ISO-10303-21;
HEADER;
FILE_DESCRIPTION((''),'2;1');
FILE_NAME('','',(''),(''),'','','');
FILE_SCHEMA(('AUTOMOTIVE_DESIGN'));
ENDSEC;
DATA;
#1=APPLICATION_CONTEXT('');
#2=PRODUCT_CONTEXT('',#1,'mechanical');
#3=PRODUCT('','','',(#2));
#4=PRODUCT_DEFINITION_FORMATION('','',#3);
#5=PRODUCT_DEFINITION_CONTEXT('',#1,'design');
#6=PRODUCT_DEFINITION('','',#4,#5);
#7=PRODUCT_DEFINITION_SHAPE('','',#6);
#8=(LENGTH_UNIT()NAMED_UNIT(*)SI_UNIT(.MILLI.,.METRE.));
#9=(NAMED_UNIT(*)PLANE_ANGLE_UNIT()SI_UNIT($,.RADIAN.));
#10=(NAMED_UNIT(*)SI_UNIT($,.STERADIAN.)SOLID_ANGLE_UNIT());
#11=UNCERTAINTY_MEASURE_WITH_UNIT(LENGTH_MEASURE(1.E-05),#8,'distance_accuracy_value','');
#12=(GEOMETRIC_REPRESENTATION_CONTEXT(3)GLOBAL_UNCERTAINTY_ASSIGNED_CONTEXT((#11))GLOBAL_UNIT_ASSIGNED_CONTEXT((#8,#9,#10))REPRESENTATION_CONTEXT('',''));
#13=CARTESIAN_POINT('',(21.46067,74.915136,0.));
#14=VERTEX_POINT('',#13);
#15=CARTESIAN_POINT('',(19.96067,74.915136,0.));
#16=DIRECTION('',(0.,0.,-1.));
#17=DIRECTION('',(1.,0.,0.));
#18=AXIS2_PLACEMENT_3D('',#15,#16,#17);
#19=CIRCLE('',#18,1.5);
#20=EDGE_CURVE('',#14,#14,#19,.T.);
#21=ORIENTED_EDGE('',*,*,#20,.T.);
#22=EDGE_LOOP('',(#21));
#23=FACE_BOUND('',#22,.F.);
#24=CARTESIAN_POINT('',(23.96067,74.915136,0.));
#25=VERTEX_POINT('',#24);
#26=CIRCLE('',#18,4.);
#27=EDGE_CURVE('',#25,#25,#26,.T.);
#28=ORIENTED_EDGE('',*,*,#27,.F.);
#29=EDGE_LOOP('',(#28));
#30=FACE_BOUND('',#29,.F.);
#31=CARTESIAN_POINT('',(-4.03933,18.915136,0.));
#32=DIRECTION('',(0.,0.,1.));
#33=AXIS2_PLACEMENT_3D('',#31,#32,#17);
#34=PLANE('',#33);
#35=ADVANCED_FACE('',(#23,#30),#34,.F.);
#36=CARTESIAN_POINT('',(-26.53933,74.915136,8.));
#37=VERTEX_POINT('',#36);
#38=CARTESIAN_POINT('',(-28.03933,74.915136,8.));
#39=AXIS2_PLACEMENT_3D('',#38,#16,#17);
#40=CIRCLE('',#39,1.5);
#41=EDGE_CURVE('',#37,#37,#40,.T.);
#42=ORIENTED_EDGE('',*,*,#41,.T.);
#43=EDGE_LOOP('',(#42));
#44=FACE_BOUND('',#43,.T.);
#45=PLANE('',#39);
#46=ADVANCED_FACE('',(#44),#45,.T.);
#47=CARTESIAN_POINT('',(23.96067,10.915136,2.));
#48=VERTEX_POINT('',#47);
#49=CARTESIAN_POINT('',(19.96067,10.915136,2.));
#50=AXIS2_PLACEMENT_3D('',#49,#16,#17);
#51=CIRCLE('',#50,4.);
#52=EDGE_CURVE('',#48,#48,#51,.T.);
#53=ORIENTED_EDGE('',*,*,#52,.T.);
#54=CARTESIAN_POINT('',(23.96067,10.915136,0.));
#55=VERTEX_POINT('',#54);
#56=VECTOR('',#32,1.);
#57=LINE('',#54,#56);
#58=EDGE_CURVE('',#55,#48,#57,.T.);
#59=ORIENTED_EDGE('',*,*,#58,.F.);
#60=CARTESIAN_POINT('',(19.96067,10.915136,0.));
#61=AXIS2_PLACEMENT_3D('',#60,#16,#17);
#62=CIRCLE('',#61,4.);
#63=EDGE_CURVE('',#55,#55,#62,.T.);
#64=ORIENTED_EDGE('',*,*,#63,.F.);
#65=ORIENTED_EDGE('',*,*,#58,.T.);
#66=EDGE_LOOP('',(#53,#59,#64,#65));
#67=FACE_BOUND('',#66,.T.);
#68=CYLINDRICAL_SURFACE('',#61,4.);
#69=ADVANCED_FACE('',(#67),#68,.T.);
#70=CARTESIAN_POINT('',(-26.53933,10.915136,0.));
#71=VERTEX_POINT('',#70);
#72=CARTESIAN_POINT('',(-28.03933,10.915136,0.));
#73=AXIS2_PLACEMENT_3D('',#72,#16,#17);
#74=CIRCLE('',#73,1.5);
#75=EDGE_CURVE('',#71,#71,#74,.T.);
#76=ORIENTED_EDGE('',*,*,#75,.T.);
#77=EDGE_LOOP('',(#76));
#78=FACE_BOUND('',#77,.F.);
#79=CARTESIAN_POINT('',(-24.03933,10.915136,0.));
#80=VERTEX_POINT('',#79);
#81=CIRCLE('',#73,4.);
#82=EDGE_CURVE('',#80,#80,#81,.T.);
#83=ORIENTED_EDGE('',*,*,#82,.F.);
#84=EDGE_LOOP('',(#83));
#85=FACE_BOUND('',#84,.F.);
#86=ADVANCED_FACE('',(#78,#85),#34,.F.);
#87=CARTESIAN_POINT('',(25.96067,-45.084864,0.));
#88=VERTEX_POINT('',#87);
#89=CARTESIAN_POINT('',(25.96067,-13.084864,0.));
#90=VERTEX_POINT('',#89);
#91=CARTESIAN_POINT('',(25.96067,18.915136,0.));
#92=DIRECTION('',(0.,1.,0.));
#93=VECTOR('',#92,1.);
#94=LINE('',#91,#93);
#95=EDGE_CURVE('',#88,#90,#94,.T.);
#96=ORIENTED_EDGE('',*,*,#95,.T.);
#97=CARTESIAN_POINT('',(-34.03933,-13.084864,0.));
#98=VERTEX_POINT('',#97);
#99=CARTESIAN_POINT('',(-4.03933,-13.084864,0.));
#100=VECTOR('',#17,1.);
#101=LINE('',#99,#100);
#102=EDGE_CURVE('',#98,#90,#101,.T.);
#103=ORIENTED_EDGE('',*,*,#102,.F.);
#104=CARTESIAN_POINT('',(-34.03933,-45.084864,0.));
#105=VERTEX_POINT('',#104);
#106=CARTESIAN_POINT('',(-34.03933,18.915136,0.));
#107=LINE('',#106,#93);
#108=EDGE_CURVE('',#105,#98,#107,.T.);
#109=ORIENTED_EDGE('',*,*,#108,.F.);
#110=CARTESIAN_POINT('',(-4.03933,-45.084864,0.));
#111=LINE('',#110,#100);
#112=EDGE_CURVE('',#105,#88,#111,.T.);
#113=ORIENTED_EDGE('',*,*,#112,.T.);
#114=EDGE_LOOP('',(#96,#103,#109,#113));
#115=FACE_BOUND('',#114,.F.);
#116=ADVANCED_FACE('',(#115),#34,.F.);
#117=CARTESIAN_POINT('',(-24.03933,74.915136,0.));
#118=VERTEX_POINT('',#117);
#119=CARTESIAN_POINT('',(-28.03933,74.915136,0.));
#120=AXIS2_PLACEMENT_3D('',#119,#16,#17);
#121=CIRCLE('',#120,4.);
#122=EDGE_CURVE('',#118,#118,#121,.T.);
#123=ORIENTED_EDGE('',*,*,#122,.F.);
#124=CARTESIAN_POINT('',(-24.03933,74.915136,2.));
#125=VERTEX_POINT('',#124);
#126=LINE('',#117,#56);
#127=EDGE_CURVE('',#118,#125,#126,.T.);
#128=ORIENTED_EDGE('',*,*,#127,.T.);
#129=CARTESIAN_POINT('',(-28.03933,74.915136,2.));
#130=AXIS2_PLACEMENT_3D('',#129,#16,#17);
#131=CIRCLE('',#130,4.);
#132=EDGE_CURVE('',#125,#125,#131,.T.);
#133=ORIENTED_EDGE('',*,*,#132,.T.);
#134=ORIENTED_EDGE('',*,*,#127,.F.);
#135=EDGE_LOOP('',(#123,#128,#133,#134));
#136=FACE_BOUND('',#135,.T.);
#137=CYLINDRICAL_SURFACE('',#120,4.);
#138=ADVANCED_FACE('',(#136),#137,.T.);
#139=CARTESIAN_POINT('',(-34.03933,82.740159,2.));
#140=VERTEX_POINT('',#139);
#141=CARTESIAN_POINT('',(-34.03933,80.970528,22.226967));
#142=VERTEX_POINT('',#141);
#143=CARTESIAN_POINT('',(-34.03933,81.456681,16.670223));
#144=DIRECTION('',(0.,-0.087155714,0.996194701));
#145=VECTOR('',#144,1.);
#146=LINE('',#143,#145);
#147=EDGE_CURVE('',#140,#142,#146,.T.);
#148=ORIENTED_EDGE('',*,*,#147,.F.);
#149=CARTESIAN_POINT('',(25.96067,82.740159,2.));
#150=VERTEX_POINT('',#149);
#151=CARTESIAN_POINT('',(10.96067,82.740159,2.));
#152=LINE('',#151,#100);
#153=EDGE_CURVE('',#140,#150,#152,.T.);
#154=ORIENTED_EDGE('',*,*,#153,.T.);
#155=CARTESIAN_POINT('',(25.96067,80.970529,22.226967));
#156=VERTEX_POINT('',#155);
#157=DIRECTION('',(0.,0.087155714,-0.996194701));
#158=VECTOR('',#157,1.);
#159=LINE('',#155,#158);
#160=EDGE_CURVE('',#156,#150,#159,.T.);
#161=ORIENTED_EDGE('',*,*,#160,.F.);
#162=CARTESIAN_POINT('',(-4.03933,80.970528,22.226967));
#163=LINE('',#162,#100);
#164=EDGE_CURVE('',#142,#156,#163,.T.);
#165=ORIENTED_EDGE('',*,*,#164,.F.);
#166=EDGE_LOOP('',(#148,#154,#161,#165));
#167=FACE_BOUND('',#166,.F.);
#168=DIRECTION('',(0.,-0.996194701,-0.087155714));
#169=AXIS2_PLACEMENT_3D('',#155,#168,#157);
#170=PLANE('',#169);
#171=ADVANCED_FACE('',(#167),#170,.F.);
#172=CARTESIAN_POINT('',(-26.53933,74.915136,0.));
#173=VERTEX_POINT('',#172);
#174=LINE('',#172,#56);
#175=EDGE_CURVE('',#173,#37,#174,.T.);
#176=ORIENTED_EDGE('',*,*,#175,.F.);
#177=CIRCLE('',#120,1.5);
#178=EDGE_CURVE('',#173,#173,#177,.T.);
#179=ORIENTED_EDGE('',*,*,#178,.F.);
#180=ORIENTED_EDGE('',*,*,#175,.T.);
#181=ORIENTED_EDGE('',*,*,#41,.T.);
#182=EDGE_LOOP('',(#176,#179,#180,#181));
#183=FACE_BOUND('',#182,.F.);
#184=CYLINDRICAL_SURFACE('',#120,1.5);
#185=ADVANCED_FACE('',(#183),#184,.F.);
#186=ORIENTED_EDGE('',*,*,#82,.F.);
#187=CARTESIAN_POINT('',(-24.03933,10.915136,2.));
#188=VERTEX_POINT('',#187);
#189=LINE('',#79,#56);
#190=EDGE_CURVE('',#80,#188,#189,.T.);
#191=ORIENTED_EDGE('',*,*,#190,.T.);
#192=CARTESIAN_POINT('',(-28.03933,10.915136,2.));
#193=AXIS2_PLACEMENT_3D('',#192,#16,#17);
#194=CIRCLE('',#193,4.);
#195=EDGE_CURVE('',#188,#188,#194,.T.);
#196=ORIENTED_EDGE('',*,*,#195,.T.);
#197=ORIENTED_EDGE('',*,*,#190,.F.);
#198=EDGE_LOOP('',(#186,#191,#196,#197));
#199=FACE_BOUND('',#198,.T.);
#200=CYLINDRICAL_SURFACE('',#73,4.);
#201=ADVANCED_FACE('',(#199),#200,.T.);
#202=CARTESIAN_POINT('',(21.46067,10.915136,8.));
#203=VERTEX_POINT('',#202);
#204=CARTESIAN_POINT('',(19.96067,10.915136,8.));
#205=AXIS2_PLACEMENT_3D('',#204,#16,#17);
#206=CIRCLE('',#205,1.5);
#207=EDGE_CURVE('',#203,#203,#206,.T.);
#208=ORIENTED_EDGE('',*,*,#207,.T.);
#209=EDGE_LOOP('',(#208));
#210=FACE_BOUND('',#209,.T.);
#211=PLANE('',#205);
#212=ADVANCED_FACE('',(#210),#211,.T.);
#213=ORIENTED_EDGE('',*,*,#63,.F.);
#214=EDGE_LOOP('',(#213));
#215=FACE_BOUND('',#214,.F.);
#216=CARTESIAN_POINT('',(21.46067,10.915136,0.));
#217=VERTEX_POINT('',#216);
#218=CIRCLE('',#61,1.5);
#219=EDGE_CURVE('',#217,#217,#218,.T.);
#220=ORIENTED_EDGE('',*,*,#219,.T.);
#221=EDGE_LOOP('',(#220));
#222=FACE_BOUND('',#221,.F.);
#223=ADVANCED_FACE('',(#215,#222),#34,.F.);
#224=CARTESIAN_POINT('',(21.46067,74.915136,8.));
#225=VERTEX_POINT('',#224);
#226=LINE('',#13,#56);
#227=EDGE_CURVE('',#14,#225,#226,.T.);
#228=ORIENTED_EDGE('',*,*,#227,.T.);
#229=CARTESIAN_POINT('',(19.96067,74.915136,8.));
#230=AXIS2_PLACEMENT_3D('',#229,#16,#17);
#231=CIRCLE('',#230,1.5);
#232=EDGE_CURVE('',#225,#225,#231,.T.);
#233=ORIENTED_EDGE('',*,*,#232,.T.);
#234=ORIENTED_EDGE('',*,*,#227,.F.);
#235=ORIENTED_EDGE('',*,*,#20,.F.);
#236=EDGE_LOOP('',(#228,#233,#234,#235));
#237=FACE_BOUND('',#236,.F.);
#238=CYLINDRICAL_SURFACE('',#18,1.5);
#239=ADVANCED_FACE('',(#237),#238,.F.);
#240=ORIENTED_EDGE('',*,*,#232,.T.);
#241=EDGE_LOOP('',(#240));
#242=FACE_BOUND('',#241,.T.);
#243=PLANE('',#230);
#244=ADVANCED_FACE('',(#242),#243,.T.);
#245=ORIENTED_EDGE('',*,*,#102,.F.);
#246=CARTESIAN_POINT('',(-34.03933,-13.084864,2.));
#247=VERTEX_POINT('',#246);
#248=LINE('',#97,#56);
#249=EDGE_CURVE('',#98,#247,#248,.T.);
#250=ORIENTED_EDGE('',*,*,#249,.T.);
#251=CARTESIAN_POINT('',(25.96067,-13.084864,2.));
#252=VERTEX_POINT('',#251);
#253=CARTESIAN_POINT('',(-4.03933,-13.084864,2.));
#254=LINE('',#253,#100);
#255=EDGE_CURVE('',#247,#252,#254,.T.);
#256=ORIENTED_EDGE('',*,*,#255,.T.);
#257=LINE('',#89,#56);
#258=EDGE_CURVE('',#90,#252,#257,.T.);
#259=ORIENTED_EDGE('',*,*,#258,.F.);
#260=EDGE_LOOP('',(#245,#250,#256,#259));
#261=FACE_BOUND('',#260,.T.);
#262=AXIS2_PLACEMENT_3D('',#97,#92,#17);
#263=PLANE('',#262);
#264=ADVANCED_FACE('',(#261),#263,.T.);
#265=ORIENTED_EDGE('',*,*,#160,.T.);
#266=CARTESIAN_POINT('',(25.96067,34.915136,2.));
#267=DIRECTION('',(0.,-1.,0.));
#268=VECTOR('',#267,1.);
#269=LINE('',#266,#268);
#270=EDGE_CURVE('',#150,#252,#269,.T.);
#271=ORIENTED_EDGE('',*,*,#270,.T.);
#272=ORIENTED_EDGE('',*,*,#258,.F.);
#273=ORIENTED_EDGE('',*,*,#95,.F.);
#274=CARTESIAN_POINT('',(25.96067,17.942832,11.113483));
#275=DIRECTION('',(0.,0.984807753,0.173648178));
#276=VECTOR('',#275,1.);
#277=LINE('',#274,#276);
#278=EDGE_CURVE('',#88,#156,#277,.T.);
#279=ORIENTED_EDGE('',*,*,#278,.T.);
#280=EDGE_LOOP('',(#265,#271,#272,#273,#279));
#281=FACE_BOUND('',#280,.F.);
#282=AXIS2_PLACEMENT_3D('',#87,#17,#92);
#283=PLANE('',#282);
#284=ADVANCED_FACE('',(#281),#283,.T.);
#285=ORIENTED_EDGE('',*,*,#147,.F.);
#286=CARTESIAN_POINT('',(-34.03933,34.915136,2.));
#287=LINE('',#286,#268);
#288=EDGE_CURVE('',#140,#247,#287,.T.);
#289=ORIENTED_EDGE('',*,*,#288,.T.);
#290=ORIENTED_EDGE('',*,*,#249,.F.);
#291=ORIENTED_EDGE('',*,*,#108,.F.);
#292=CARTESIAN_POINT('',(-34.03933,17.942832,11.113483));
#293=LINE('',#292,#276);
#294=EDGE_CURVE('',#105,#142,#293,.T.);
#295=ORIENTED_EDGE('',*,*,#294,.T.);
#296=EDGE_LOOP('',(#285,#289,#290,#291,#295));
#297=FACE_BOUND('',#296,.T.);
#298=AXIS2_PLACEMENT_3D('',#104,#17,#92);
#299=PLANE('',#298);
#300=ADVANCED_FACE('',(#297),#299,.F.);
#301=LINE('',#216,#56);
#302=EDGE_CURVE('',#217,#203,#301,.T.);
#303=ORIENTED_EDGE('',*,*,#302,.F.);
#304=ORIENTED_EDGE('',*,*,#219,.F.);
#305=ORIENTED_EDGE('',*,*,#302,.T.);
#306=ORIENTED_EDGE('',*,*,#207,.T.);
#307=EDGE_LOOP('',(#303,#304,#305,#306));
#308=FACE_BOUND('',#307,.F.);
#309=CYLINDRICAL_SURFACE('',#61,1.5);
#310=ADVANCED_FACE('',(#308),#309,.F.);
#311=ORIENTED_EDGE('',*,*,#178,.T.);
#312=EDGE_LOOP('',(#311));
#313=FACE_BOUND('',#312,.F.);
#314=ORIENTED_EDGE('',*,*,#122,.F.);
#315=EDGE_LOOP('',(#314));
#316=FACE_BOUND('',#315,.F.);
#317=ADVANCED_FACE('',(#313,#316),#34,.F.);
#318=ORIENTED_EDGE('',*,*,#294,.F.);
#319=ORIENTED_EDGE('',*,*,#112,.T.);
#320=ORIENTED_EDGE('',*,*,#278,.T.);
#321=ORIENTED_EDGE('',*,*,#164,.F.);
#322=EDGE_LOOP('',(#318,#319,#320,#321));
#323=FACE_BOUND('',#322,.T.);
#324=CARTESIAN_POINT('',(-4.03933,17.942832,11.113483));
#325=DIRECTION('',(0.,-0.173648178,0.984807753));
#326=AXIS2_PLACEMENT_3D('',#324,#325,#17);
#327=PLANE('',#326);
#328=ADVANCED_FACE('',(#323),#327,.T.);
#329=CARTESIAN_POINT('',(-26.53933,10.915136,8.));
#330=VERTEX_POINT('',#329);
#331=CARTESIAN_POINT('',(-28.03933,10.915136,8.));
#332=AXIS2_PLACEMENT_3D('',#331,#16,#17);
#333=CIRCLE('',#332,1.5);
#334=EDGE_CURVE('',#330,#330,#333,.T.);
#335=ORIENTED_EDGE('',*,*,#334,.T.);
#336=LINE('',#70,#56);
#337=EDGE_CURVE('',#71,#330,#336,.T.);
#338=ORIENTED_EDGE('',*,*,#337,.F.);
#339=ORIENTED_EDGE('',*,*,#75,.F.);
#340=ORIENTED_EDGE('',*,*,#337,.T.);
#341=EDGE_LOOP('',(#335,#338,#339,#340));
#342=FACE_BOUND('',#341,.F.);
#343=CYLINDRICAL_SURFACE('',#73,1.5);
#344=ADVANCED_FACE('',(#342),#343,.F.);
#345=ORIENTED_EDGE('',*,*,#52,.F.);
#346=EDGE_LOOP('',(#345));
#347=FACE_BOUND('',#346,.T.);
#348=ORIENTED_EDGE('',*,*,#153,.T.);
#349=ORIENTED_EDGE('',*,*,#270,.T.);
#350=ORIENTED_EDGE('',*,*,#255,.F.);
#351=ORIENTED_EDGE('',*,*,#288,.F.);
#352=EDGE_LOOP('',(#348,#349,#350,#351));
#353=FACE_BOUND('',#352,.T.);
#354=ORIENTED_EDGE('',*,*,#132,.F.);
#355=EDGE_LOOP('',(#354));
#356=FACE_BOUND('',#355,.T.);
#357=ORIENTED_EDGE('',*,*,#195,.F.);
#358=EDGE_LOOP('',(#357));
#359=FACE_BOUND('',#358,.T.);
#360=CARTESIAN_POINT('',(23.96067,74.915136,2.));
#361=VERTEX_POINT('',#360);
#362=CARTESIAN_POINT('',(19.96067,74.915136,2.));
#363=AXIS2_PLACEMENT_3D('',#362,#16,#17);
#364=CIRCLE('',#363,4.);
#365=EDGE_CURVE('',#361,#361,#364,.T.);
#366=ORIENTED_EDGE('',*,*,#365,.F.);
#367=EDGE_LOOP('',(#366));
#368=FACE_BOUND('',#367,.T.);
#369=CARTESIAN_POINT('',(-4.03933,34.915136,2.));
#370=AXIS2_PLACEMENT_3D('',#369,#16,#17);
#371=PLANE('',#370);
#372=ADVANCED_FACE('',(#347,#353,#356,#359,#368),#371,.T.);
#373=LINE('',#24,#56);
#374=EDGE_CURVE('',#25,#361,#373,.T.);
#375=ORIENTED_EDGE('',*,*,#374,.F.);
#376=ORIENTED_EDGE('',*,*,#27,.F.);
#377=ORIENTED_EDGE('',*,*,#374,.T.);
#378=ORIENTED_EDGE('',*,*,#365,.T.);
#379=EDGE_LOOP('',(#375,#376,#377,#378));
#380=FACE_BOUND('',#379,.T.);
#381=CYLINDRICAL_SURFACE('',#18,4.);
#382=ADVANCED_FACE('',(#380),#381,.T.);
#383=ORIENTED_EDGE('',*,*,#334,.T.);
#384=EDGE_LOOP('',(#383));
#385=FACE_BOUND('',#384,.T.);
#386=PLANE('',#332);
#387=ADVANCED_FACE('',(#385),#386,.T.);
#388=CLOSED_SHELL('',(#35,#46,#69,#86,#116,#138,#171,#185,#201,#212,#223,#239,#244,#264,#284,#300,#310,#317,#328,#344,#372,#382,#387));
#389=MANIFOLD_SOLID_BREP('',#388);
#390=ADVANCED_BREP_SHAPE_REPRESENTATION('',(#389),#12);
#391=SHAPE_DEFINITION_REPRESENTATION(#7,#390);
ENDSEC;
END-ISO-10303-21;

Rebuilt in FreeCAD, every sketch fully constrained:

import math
import FreeCAD as App
import Part
import Sketcher
from FreeCAD import Vector
Q = App.Units.Quantity

doc = App.newDocument("Part")
params = doc.addObject("Spreadsheet::Sheet", "Params")
for row, (alias, value) in enumerate([
    ("sketch1_width", "60 mm"),
    ("sketch1_height", "128 mm"),
    ("revolution_angle", "10 deg"),
    ("sketch3_diameter", "8 mm"),
    ("sketch3_width", "60 mm"),
    ("sketch3_height", "96 mm"),
    ("pocket2_length", "2 mm"),
    ("sketch4_diameter", "3 mm"),
    ("pocket3_length", "8 mm"),
], start=1):
    params.set(f"A{row}", alias)
    params.set(f"B{row}", "=" + value)
    params.setAlias(f"B{row}", alias)

body = doc.addObject("PartDesign::Body", "Body")

# Sketch on XY plane
sketch1 = doc.addObject("Sketcher::SketchObject", "Sketch")
body.addObject(sketch1)
sketch1.AttachmentSupport = (doc.XY_Plane, [""])
sketch1.MapMode = "FlatFace"
sketch1.addGeometry(Part.LineSegment(Vector(-34.03933, 82.915136, 0), Vector(-34.03933, -45.084864, 0)), False)
sketch1.addGeometry(Part.LineSegment(Vector(-34.03933, -45.084864, 0), Vector(25.96067, -45.084864, 0)), False)
sketch1.addGeometry(Part.LineSegment(Vector(25.96067, -45.084864, 0), Vector(25.96067, 82.915136, 0)), False)
sketch1.addGeometry(Part.LineSegment(Vector(25.96067, 82.915136, 0), Vector(-34.03933, 82.915136, 0)), False)
sketch1.addGeometry(Part.LineSegment(Vector(-34.03933, -45.084864, 0), Vector(25.96067, -45.084864, 0)), True)  # axis
sketch1.addConstraint(Sketcher.Constraint("Coincident", 0, 2, 1, 1))
sketch1.addConstraint(Sketcher.Constraint("Coincident", 1, 2, 2, 1))
sketch1.addConstraint(Sketcher.Constraint("Coincident", 2, 2, 3, 1))
sketch1.addConstraint(Sketcher.Constraint("Coincident", 3, 2, 0, 1))
sketch1.addConstraint(Sketcher.Constraint("Vertical", 0))
sketch1.addConstraint(Sketcher.Constraint("Horizontal", 1))
sketch1.addConstraint(Sketcher.Constraint("Vertical", 2))
sketch1.addConstraint(Sketcher.Constraint("Horizontal", 3))
sketch1.addConstraint(Sketcher.Constraint("Horizontal", 4))
sketch1.addConstraint(Sketcher.Constraint("Coincident", 4, 1, 0, 2))
sketch1.addConstraint(Sketcher.Constraint("Vertical", 2, 2, 4, 2))
sketch1.addConstraint(Sketcher.Constraint("DistanceX", 1, 1, 1, 2, 60.0))
sketch1.addConstraint(Sketcher.Constraint("DistanceY", 0, 2, 0, 1, 128.0))
sketch1.addConstraint(Sketcher.Constraint("DistanceX", 0, 2, -1, 1, 34.03933))
sketch1.addConstraint(Sketcher.Constraint("DistanceY", 0, 2, -1, 1, 45.084864))
sketch1.setExpression("Constraints[11]", "Params.sketch1_width")
sketch1.setExpression("Constraints[12]", "Params.sketch1_height")
revolution = doc.addObject("PartDesign::Revolution", "Revolution")
body.addObject(revolution)
revolution.Profile = sketch1
revolution.ReferenceAxis = (sketch1, ["Axis0"])
revolution.setExpression("Angle", "Params.revolution_angle")

# Sketch on YZ plane
sketch2 = doc.addObject("Sketcher::SketchObject", "Sketch001")
body.addObject(sketch2)
sketch2.AttachmentSupport = (doc.YZ_Plane, [""])
sketch2.MapMode = "FlatFace"
sketch2.AttachmentOffset = App.Placement(Vector(0, 0, 25.96067), App.Rotation())
sketch2.addGeometry(Part.LineSegment(Vector(80.970529, 22.226967, 0), Vector(82.915136, 0, 0)), False)
sketch2.addGeometry(Part.ArcOfCircle(Part.Circle(Vector(-45.084783, 0.000011, 0), Vector(0, 0, 1), 127.999919), math.radians(-0.000005), math.radians(10.000002)), False)
sketch2.addConstraint(Sketcher.Constraint("Coincident", 0, 1, 1, 2))
sketch2.addConstraint(Sketcher.Constraint("Coincident", 1, 1, 0, 2))
sketch2.addConstraint(Sketcher.Constraint("PointOnObject", 1, 1, -1))
sketch2.addConstraint(Sketcher.Constraint("Angle", 0, Q("-85.000002 deg")))
sketch2.addConstraint(Sketcher.Constraint("Radius", 1, 127.999919))
sketch2.addConstraint(Sketcher.Constraint("Distance", 0, 22.31187))
sketch2.addConstraint(Sketcher.Constraint("DistanceX", -1, 1, 0, 1, 80.970529))
pocket1 = doc.addObject("PartDesign::Pocket", "Pocket")
body.addObject(pocket1)
pocket1.Profile = sketch2
pocket1.Type = "ThroughAll"

# Sketch on XY plane
sketch3 = doc.addObject("Sketcher::SketchObject", "Sketch002")
body.addObject(sketch3)
sketch3.AttachmentSupport = (doc.XY_Plane, [""])
sketch3.MapMode = "FlatFace"
sketch3.addGeometry(Part.LineSegment(Vector(-34.03933, -13.084864, 0), Vector(-34.03933, 82.915136, 0)), False)
sketch3.addGeometry(Part.LineSegment(Vector(-34.03933, 82.915136, 0), Vector(25.96067, 82.915136, 0)), False)
sketch3.addGeometry(Part.LineSegment(Vector(25.96067, 82.915136, 0), Vector(25.96067, -13.084864, 0)), False)
sketch3.addGeometry(Part.LineSegment(Vector(25.96067, -13.084864, 0), Vector(-34.03933, -13.084864, 0)), False)
sketch3.addGeometry(Part.Circle(Vector(-28.03933, 74.915136, 0), Vector(0, 0, 1), 4), False)
sketch3.addGeometry(Part.Circle(Vector(19.96067, 74.915136, 0), Vector(0, 0, 1), 4), False)
sketch3.addGeometry(Part.Circle(Vector(-28.03933, 10.915136, 0), Vector(0, 0, 1), 4), False)
sketch3.addGeometry(Part.Circle(Vector(19.96067, 10.915136, 0), Vector(0, 0, 1), 4), False)
sketch3.addConstraint(Sketcher.Constraint("Coincident", 0, 2, 1, 1))
sketch3.addConstraint(Sketcher.Constraint("Coincident", 1, 2, 2, 1))
sketch3.addConstraint(Sketcher.Constraint("Coincident", 2, 2, 3, 1))
sketch3.addConstraint(Sketcher.Constraint("Coincident", 3, 2, 0, 1))
sketch3.addConstraint(Sketcher.Constraint("Vertical", 0))
sketch3.addConstraint(Sketcher.Constraint("Horizontal", 1))
sketch3.addConstraint(Sketcher.Constraint("Vertical", 2))
sketch3.addConstraint(Sketcher.Constraint("Horizontal", 3))
sketch3.addConstraint(Sketcher.Constraint("Equal", 4, 5))
sketch3.addConstraint(Sketcher.Constraint("Equal", 5, 6))
sketch3.addConstraint(Sketcher.Constraint("Equal", 6, 7))
sketch3.addConstraint(Sketcher.Constraint("Horizontal", 4, 3, 5, 3))
sketch3.addConstraint(Sketcher.Constraint("Horizontal", 6, 3, 7, 3))
sketch3.addConstraint(Sketcher.Constraint("Vertical", 4, 3, 6, 3))
sketch3.addConstraint(Sketcher.Constraint("Vertical", 5, 3, 7, 3))
sketch3.addConstraint(Sketcher.Constraint("Diameter", 4, 8.0))
sketch3.addConstraint(Sketcher.Constraint("DistanceX", 1, 1, 1, 2, 60.0))
sketch3.addConstraint(Sketcher.Constraint("DistanceY", 0, 1, 0, 2, 96.0))
sketch3.addConstraint(Sketcher.Constraint("DistanceX", 4, 3, 5, 3, 48.0))
sketch3.addConstraint(Sketcher.Constraint("DistanceY", 6, 3, 4, 3, 64.0))
sketch3.addConstraint(Sketcher.Constraint("DistanceX", 0, 2, 4, 3, 6.0))
sketch3.addConstraint(Sketcher.Constraint("DistanceY", 4, 3, 0, 2, 8.0))
sketch3.addConstraint(Sketcher.Constraint("DistanceX", 4, 3, -1, 1, 28.03933))
sketch3.addConstraint(Sketcher.Constraint("DistanceY", -1, 1, 4, 3, 74.915136))
sketch3.setExpression("Constraints[15]", "Params.sketch3_diameter")
sketch3.setExpression("Constraints[16]", "Params.sketch3_width")
sketch3.setExpression("Constraints[17]", "Params.sketch3_height")
pocket2 = doc.addObject("PartDesign::Pocket", "Pocket001")
body.addObject(pocket2)
pocket2.Profile = sketch3
pocket2.setExpression("Length", "Params.pocket2_length")
pocket2.Reversed = True

# Sketch on XY plane
sketch4 = doc.addObject("Sketcher::SketchObject", "Sketch003")
body.addObject(sketch4)
sketch4.AttachmentSupport = (doc.XY_Plane, [""])
sketch4.MapMode = "FlatFace"
sketch4.addGeometry(Part.Circle(Vector(-28.03933, 10.915136, 0), Vector(0, 0, 1), 1.5), False)
sketch4.addGeometry(Part.Circle(Vector(19.96067, 10.915136, 0), Vector(0, 0, 1), 1.5), False)
sketch4.addGeometry(Part.Circle(Vector(19.96067, 74.915136, 0), Vector(0, 0, 1), 1.5), False)
sketch4.addGeometry(Part.Circle(Vector(-28.03933, 74.915136, 0), Vector(0, 0, 1), 1.5), False)
sketch4.addConstraint(Sketcher.Constraint("Equal", 0, 1))
sketch4.addConstraint(Sketcher.Constraint("Equal", 1, 2))
sketch4.addConstraint(Sketcher.Constraint("Equal", 2, 3))
sketch4.addConstraint(Sketcher.Constraint("Horizontal", 0, 3, 1, 3))
sketch4.addConstraint(Sketcher.Constraint("Horizontal", 2, 3, 3, 3))
sketch4.addConstraint(Sketcher.Constraint("Vertical", 1, 3, 2, 3))
sketch4.addConstraint(Sketcher.Constraint("Vertical", 0, 3, 3, 3))
sketch4.addConstraint(Sketcher.Constraint("Diameter", 0, 3.0))
sketch4.addConstraint(Sketcher.Constraint("DistanceX", 0, 3, 1, 3, 48.0))
sketch4.addConstraint(Sketcher.Constraint("DistanceY", 1, 3, 2, 3, 64.0))
sketch4.addConstraint(Sketcher.Constraint("DistanceX", 0, 3, -1, 1, 28.03933))
sketch4.addConstraint(Sketcher.Constraint("DistanceY", -1, 1, 0, 3, 10.915136))
sketch4.setExpression("Constraints[7]", "Params.sketch4_diameter")
pocket3 = doc.addObject("PartDesign::Pocket", "Pocket002")
body.addObject(pocket3)
pocket3.Profile = sketch4
pocket3.setExpression("Length", "Params.pocket3_length")
pocket3.Reversed = True

doc.recompute()
